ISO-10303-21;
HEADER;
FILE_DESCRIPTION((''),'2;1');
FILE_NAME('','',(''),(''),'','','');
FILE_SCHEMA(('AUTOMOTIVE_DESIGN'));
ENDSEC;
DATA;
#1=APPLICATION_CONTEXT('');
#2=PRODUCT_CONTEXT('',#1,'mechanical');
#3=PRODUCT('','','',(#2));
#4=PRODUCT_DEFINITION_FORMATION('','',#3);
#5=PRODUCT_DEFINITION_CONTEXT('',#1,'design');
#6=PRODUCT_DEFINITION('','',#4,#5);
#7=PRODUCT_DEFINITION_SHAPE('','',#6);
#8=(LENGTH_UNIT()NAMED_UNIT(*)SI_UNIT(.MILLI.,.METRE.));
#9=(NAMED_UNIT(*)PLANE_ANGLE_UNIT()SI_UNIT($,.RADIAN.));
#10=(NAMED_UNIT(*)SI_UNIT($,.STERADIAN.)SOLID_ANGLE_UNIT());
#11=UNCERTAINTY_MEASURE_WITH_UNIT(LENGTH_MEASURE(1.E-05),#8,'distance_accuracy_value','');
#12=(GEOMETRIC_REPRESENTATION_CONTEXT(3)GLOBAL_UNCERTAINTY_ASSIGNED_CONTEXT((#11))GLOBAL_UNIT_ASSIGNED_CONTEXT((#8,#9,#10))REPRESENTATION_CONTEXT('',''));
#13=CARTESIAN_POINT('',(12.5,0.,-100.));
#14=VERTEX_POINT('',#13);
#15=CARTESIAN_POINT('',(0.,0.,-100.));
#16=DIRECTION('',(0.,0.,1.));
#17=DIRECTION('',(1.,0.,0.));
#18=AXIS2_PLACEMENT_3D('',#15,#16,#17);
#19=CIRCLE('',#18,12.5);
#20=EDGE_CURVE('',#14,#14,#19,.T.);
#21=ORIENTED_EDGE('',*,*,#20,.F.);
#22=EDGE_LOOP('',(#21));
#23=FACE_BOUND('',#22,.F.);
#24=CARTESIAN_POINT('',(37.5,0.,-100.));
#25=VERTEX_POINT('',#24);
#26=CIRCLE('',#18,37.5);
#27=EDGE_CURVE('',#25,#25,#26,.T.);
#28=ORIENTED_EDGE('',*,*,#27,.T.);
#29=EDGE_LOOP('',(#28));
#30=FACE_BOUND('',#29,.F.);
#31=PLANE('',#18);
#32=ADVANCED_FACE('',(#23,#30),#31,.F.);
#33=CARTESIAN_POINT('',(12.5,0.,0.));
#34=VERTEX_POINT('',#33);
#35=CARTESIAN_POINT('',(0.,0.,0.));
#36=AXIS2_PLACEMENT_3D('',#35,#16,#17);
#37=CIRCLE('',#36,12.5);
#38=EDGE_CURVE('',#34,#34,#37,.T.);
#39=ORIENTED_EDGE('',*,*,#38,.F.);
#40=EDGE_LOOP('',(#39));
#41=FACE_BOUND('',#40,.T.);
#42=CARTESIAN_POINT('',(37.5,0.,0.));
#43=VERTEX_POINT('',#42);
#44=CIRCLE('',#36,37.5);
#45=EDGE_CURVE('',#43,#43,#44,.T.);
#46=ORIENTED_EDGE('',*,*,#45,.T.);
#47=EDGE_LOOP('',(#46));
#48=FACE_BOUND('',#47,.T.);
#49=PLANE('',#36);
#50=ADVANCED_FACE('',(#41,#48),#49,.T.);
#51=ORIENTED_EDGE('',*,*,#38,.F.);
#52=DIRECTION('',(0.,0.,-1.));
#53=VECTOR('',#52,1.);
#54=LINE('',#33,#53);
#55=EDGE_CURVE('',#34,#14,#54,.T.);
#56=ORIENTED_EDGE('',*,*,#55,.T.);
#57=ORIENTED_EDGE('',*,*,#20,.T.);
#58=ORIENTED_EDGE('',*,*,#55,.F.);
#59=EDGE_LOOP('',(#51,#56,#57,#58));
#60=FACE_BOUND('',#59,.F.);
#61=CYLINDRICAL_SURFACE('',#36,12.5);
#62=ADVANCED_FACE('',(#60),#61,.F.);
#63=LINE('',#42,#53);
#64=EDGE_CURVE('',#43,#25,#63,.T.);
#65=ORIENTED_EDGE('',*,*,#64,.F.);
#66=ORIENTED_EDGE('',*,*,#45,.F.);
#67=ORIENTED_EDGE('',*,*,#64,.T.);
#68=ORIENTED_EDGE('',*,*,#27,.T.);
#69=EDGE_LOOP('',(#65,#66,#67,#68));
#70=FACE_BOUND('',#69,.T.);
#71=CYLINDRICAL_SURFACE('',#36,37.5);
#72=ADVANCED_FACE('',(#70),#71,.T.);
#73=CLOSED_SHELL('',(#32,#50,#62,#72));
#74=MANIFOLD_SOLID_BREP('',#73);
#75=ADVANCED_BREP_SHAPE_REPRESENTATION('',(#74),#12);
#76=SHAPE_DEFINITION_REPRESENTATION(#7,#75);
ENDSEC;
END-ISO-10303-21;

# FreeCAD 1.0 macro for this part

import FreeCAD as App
import Part
import Sketcher

V = App.Vector

doc = App.newDocument("Part")
body = doc.addObject("PartDesign::Body", "Body")

# Sketch on XY plane
sketch1 = body.newObject("Sketcher::SketchObject", "Sketch")
sketch1.AttachmentSupport = (doc.getObject("XY_Plane"), [""])
sketch1.MapMode = "FlatFace"
sketch1.addGeometry([
    Part.Circle(V(0, 0, 0), V(0, 0, 1), 38),
    Part.Circle(V(0, 0, 0), V(0, 0, 1), 12),
], False)
sketch1.addConstraint([
    Sketcher.Constraint("Coincident", 0, 3, -1, 1),
    Sketcher.Constraint("Coincident", 1, 3, -1, 1),
    Sketcher.Constraint("Diameter", 0, 75.0),
    Sketcher.Constraint("Diameter", 1, 25.0),
])
pad1 = body.newObject("PartDesign::Pad", "Pad")
pad1.Profile = sketch1
pad1.Length = 100
pad1.Reversed = True

doc.recompute()
